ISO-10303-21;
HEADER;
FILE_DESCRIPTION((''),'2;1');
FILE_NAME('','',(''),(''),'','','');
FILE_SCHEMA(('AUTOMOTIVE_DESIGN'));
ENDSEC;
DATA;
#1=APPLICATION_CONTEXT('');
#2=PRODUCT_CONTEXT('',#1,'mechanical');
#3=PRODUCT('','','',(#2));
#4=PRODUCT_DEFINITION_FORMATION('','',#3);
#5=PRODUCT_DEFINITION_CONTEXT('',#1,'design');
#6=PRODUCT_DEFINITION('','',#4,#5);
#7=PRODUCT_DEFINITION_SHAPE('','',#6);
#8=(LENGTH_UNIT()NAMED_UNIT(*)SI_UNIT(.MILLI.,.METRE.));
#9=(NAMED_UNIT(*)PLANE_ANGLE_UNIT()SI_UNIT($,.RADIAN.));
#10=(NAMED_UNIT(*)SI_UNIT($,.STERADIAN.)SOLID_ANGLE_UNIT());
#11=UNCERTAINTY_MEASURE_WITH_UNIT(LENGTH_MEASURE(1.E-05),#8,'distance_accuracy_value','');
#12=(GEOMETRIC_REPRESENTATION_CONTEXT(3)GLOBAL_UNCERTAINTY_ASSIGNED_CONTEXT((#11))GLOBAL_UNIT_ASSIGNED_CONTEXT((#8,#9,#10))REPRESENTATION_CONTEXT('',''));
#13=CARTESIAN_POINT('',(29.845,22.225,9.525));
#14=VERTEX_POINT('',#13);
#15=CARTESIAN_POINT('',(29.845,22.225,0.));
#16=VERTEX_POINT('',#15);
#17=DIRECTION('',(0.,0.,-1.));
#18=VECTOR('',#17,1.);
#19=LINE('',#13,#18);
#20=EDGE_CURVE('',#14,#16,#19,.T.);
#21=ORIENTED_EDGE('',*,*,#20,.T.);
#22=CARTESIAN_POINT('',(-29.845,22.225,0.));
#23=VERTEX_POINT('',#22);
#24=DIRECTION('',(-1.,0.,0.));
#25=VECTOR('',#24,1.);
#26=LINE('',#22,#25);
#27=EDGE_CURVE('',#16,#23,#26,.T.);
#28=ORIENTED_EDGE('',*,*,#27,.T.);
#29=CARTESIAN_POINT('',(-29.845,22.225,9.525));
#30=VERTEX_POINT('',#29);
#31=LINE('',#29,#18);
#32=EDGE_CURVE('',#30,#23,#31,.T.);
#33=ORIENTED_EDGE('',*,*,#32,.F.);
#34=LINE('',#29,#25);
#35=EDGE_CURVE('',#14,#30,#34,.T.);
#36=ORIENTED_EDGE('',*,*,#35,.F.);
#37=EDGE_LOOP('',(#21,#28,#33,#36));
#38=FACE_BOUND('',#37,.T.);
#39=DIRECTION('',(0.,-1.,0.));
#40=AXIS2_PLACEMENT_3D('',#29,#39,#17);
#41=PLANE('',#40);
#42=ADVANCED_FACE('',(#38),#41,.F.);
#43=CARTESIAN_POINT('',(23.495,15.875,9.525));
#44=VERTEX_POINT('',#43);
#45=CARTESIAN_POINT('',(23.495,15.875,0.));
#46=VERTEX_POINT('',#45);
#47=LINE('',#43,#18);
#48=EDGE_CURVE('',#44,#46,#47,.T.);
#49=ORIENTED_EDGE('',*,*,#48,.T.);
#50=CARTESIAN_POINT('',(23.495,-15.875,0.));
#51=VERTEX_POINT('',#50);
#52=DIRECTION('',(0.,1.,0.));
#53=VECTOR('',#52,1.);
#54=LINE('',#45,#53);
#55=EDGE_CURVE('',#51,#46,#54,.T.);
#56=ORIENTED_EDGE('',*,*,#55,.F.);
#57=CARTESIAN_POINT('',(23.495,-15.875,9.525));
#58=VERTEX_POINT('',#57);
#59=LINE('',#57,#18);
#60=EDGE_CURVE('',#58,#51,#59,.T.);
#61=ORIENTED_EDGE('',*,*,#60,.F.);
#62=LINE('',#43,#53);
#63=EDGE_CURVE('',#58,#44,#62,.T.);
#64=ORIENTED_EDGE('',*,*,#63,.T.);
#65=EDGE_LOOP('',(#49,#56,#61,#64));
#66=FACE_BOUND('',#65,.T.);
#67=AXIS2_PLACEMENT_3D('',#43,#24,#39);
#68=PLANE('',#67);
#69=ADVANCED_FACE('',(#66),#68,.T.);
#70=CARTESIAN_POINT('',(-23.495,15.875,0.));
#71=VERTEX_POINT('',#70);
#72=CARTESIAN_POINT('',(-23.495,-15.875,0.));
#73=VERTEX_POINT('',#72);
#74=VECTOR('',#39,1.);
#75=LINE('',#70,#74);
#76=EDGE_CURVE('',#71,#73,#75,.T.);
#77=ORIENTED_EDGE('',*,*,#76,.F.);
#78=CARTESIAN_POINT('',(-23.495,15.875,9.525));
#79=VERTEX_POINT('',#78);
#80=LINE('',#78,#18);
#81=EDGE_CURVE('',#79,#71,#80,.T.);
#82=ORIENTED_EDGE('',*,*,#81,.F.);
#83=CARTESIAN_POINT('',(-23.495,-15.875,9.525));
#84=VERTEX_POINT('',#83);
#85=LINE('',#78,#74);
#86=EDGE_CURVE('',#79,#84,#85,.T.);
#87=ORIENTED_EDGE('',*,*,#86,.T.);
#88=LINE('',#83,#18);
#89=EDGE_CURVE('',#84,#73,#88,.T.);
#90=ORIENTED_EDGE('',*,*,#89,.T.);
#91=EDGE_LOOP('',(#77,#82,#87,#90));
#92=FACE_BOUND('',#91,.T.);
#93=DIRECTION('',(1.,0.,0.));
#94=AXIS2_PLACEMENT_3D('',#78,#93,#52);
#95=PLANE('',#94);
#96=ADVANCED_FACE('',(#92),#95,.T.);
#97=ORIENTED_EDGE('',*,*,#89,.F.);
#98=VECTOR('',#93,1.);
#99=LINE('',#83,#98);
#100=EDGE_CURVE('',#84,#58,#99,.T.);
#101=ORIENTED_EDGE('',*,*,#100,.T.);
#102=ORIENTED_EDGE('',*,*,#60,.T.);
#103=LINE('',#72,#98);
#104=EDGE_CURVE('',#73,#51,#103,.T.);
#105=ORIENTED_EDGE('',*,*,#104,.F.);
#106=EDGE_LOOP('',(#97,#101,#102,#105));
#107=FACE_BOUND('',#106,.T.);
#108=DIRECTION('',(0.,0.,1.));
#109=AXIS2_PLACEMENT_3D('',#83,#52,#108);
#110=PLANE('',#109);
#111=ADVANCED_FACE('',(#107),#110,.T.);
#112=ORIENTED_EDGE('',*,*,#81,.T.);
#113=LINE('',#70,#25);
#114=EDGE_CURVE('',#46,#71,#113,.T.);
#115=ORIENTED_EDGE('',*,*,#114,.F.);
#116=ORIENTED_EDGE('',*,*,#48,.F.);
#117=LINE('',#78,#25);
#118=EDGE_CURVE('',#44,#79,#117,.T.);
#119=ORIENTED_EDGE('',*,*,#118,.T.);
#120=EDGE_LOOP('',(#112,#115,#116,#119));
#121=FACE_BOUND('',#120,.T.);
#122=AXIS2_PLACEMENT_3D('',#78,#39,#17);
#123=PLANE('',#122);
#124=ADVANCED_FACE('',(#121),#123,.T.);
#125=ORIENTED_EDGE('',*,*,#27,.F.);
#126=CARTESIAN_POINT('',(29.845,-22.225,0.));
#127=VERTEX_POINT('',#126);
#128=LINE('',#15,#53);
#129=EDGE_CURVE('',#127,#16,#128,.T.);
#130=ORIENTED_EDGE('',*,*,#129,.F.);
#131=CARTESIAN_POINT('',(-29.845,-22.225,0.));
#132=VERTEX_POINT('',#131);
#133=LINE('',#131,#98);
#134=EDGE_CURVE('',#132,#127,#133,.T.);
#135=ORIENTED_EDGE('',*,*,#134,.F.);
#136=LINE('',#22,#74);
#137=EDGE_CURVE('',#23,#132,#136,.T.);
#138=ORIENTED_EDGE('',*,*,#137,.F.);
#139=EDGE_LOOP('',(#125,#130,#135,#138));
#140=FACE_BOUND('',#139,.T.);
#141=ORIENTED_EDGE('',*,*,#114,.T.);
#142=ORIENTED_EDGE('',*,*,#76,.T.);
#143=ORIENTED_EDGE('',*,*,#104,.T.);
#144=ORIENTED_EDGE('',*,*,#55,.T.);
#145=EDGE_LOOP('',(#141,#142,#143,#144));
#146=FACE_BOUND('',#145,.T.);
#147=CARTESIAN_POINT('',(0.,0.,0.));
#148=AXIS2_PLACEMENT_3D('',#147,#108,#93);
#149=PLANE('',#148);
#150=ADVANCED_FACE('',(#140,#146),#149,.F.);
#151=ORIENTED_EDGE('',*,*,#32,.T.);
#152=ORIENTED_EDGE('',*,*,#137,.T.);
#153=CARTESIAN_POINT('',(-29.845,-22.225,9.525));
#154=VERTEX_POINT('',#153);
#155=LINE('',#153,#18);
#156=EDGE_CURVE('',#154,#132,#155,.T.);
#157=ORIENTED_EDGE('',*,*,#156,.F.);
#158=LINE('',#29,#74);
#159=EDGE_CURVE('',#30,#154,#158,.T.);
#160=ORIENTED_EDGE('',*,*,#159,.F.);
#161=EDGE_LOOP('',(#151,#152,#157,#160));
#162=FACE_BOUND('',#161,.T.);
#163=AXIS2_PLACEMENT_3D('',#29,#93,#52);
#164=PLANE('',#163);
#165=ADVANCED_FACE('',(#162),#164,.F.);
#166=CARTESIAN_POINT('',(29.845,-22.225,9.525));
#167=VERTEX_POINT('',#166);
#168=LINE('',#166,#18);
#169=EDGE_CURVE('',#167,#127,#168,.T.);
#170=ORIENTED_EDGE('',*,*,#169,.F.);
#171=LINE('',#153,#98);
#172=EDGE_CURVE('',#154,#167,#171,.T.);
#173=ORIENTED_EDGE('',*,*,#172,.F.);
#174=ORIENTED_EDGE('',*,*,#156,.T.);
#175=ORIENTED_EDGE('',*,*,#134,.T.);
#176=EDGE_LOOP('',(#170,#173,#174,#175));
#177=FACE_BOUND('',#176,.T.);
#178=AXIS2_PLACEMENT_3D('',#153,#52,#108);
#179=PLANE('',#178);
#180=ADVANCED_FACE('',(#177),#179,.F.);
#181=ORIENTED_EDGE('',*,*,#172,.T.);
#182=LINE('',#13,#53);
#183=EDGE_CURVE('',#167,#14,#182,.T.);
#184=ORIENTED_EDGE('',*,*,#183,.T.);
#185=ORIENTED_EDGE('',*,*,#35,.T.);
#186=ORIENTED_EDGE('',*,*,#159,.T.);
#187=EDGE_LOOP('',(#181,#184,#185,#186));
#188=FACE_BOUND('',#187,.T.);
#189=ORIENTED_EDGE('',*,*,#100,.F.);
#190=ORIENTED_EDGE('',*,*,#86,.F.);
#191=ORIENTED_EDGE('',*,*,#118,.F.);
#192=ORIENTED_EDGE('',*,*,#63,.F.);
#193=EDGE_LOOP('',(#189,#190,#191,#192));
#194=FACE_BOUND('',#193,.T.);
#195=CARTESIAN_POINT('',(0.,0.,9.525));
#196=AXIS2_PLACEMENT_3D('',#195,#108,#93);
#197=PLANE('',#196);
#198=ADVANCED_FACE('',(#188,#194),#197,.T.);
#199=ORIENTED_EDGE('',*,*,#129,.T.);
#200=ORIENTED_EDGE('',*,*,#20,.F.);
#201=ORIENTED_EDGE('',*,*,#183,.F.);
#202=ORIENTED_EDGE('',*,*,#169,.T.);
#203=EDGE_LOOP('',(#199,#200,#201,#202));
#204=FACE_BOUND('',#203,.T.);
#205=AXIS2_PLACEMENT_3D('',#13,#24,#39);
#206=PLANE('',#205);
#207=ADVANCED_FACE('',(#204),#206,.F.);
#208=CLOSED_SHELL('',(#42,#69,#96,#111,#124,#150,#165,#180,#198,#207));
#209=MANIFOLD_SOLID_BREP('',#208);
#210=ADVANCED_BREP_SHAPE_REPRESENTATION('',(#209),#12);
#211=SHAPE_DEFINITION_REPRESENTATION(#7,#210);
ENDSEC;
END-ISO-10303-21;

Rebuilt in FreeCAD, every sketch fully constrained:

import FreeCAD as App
import Part
import Sketcher
from FreeCAD import Vector
Q = App.Units.Quantity


def add_polygon(sketch, points):
    """Adds a closed chain of lines whose ends are joined by coincident constraints."""
    first, n = sketch.GeometryCount, len(points)
    for a, b in zip(points, points[1:] + points[:1]):
        sketch.addGeometry(Part.LineSegment(App.Vector(*a, 0), App.Vector(*b, 0)), False)
    for i in range(n):
        sketch.addConstraint(Sketcher.Constraint("Coincident", first + i, 2, first + (i + 1) % n, 1))

doc = App.newDocument("Part")
body = doc.addObject("PartDesign::Body", "Body")

sketch1 = body.newObject("Sketcher::SketchObject", "Sketch")
sketch1.AttachmentSupport = (doc.getObject("XY_Plane"), [""])
sketch1.MapMode = "FlatFace"
add_polygon(sketch1, [(-30, 22), (-30, -22), (30, -22), (30, 22)])
add_polygon(sketch1, [(23, -16), (-23, -16), (-23, 16), (23, 16)])
sketch1.addConstraint([
    Sketcher.Constraint("Vertical", 0),
    Sketcher.Constraint("Horizontal", 1),
    Sketcher.Constraint("Vertical", 2),
    Sketcher.Constraint("Horizontal", 3),
    Sketcher.Constraint("Horizontal", 4),
    Sketcher.Constraint("Vertical", 5),
    Sketcher.Constraint("Horizontal", 6),
    Sketcher.Constraint("Vertical", 7),
    Sketcher.Constraint("Symmetric", 0, 2, 2, 2, -1, 1),
    Sketcher.Constraint("Symmetric", 4, 2, 6, 2, -1, 1),
    Sketcher.Constraint("DistanceX", 1, 1, 1, 2, Q("2.35 in")),
    Sketcher.Constraint("DistanceX", 4, 2, 4, 1, Q("1.85 in")),
    Sketcher.Constraint("DistanceY", 0, 2, 0, 1, Q("1.75 in")),
    Sketcher.Constraint("DistanceY", 5, 1, 5, 2, Q("1.25 in")),
])
pad1 = body.newObject("PartDesign::Pad", "Pad")
pad1.Profile = sketch1
pad1.Length = Q("0.375 in")

doc.recompute()
